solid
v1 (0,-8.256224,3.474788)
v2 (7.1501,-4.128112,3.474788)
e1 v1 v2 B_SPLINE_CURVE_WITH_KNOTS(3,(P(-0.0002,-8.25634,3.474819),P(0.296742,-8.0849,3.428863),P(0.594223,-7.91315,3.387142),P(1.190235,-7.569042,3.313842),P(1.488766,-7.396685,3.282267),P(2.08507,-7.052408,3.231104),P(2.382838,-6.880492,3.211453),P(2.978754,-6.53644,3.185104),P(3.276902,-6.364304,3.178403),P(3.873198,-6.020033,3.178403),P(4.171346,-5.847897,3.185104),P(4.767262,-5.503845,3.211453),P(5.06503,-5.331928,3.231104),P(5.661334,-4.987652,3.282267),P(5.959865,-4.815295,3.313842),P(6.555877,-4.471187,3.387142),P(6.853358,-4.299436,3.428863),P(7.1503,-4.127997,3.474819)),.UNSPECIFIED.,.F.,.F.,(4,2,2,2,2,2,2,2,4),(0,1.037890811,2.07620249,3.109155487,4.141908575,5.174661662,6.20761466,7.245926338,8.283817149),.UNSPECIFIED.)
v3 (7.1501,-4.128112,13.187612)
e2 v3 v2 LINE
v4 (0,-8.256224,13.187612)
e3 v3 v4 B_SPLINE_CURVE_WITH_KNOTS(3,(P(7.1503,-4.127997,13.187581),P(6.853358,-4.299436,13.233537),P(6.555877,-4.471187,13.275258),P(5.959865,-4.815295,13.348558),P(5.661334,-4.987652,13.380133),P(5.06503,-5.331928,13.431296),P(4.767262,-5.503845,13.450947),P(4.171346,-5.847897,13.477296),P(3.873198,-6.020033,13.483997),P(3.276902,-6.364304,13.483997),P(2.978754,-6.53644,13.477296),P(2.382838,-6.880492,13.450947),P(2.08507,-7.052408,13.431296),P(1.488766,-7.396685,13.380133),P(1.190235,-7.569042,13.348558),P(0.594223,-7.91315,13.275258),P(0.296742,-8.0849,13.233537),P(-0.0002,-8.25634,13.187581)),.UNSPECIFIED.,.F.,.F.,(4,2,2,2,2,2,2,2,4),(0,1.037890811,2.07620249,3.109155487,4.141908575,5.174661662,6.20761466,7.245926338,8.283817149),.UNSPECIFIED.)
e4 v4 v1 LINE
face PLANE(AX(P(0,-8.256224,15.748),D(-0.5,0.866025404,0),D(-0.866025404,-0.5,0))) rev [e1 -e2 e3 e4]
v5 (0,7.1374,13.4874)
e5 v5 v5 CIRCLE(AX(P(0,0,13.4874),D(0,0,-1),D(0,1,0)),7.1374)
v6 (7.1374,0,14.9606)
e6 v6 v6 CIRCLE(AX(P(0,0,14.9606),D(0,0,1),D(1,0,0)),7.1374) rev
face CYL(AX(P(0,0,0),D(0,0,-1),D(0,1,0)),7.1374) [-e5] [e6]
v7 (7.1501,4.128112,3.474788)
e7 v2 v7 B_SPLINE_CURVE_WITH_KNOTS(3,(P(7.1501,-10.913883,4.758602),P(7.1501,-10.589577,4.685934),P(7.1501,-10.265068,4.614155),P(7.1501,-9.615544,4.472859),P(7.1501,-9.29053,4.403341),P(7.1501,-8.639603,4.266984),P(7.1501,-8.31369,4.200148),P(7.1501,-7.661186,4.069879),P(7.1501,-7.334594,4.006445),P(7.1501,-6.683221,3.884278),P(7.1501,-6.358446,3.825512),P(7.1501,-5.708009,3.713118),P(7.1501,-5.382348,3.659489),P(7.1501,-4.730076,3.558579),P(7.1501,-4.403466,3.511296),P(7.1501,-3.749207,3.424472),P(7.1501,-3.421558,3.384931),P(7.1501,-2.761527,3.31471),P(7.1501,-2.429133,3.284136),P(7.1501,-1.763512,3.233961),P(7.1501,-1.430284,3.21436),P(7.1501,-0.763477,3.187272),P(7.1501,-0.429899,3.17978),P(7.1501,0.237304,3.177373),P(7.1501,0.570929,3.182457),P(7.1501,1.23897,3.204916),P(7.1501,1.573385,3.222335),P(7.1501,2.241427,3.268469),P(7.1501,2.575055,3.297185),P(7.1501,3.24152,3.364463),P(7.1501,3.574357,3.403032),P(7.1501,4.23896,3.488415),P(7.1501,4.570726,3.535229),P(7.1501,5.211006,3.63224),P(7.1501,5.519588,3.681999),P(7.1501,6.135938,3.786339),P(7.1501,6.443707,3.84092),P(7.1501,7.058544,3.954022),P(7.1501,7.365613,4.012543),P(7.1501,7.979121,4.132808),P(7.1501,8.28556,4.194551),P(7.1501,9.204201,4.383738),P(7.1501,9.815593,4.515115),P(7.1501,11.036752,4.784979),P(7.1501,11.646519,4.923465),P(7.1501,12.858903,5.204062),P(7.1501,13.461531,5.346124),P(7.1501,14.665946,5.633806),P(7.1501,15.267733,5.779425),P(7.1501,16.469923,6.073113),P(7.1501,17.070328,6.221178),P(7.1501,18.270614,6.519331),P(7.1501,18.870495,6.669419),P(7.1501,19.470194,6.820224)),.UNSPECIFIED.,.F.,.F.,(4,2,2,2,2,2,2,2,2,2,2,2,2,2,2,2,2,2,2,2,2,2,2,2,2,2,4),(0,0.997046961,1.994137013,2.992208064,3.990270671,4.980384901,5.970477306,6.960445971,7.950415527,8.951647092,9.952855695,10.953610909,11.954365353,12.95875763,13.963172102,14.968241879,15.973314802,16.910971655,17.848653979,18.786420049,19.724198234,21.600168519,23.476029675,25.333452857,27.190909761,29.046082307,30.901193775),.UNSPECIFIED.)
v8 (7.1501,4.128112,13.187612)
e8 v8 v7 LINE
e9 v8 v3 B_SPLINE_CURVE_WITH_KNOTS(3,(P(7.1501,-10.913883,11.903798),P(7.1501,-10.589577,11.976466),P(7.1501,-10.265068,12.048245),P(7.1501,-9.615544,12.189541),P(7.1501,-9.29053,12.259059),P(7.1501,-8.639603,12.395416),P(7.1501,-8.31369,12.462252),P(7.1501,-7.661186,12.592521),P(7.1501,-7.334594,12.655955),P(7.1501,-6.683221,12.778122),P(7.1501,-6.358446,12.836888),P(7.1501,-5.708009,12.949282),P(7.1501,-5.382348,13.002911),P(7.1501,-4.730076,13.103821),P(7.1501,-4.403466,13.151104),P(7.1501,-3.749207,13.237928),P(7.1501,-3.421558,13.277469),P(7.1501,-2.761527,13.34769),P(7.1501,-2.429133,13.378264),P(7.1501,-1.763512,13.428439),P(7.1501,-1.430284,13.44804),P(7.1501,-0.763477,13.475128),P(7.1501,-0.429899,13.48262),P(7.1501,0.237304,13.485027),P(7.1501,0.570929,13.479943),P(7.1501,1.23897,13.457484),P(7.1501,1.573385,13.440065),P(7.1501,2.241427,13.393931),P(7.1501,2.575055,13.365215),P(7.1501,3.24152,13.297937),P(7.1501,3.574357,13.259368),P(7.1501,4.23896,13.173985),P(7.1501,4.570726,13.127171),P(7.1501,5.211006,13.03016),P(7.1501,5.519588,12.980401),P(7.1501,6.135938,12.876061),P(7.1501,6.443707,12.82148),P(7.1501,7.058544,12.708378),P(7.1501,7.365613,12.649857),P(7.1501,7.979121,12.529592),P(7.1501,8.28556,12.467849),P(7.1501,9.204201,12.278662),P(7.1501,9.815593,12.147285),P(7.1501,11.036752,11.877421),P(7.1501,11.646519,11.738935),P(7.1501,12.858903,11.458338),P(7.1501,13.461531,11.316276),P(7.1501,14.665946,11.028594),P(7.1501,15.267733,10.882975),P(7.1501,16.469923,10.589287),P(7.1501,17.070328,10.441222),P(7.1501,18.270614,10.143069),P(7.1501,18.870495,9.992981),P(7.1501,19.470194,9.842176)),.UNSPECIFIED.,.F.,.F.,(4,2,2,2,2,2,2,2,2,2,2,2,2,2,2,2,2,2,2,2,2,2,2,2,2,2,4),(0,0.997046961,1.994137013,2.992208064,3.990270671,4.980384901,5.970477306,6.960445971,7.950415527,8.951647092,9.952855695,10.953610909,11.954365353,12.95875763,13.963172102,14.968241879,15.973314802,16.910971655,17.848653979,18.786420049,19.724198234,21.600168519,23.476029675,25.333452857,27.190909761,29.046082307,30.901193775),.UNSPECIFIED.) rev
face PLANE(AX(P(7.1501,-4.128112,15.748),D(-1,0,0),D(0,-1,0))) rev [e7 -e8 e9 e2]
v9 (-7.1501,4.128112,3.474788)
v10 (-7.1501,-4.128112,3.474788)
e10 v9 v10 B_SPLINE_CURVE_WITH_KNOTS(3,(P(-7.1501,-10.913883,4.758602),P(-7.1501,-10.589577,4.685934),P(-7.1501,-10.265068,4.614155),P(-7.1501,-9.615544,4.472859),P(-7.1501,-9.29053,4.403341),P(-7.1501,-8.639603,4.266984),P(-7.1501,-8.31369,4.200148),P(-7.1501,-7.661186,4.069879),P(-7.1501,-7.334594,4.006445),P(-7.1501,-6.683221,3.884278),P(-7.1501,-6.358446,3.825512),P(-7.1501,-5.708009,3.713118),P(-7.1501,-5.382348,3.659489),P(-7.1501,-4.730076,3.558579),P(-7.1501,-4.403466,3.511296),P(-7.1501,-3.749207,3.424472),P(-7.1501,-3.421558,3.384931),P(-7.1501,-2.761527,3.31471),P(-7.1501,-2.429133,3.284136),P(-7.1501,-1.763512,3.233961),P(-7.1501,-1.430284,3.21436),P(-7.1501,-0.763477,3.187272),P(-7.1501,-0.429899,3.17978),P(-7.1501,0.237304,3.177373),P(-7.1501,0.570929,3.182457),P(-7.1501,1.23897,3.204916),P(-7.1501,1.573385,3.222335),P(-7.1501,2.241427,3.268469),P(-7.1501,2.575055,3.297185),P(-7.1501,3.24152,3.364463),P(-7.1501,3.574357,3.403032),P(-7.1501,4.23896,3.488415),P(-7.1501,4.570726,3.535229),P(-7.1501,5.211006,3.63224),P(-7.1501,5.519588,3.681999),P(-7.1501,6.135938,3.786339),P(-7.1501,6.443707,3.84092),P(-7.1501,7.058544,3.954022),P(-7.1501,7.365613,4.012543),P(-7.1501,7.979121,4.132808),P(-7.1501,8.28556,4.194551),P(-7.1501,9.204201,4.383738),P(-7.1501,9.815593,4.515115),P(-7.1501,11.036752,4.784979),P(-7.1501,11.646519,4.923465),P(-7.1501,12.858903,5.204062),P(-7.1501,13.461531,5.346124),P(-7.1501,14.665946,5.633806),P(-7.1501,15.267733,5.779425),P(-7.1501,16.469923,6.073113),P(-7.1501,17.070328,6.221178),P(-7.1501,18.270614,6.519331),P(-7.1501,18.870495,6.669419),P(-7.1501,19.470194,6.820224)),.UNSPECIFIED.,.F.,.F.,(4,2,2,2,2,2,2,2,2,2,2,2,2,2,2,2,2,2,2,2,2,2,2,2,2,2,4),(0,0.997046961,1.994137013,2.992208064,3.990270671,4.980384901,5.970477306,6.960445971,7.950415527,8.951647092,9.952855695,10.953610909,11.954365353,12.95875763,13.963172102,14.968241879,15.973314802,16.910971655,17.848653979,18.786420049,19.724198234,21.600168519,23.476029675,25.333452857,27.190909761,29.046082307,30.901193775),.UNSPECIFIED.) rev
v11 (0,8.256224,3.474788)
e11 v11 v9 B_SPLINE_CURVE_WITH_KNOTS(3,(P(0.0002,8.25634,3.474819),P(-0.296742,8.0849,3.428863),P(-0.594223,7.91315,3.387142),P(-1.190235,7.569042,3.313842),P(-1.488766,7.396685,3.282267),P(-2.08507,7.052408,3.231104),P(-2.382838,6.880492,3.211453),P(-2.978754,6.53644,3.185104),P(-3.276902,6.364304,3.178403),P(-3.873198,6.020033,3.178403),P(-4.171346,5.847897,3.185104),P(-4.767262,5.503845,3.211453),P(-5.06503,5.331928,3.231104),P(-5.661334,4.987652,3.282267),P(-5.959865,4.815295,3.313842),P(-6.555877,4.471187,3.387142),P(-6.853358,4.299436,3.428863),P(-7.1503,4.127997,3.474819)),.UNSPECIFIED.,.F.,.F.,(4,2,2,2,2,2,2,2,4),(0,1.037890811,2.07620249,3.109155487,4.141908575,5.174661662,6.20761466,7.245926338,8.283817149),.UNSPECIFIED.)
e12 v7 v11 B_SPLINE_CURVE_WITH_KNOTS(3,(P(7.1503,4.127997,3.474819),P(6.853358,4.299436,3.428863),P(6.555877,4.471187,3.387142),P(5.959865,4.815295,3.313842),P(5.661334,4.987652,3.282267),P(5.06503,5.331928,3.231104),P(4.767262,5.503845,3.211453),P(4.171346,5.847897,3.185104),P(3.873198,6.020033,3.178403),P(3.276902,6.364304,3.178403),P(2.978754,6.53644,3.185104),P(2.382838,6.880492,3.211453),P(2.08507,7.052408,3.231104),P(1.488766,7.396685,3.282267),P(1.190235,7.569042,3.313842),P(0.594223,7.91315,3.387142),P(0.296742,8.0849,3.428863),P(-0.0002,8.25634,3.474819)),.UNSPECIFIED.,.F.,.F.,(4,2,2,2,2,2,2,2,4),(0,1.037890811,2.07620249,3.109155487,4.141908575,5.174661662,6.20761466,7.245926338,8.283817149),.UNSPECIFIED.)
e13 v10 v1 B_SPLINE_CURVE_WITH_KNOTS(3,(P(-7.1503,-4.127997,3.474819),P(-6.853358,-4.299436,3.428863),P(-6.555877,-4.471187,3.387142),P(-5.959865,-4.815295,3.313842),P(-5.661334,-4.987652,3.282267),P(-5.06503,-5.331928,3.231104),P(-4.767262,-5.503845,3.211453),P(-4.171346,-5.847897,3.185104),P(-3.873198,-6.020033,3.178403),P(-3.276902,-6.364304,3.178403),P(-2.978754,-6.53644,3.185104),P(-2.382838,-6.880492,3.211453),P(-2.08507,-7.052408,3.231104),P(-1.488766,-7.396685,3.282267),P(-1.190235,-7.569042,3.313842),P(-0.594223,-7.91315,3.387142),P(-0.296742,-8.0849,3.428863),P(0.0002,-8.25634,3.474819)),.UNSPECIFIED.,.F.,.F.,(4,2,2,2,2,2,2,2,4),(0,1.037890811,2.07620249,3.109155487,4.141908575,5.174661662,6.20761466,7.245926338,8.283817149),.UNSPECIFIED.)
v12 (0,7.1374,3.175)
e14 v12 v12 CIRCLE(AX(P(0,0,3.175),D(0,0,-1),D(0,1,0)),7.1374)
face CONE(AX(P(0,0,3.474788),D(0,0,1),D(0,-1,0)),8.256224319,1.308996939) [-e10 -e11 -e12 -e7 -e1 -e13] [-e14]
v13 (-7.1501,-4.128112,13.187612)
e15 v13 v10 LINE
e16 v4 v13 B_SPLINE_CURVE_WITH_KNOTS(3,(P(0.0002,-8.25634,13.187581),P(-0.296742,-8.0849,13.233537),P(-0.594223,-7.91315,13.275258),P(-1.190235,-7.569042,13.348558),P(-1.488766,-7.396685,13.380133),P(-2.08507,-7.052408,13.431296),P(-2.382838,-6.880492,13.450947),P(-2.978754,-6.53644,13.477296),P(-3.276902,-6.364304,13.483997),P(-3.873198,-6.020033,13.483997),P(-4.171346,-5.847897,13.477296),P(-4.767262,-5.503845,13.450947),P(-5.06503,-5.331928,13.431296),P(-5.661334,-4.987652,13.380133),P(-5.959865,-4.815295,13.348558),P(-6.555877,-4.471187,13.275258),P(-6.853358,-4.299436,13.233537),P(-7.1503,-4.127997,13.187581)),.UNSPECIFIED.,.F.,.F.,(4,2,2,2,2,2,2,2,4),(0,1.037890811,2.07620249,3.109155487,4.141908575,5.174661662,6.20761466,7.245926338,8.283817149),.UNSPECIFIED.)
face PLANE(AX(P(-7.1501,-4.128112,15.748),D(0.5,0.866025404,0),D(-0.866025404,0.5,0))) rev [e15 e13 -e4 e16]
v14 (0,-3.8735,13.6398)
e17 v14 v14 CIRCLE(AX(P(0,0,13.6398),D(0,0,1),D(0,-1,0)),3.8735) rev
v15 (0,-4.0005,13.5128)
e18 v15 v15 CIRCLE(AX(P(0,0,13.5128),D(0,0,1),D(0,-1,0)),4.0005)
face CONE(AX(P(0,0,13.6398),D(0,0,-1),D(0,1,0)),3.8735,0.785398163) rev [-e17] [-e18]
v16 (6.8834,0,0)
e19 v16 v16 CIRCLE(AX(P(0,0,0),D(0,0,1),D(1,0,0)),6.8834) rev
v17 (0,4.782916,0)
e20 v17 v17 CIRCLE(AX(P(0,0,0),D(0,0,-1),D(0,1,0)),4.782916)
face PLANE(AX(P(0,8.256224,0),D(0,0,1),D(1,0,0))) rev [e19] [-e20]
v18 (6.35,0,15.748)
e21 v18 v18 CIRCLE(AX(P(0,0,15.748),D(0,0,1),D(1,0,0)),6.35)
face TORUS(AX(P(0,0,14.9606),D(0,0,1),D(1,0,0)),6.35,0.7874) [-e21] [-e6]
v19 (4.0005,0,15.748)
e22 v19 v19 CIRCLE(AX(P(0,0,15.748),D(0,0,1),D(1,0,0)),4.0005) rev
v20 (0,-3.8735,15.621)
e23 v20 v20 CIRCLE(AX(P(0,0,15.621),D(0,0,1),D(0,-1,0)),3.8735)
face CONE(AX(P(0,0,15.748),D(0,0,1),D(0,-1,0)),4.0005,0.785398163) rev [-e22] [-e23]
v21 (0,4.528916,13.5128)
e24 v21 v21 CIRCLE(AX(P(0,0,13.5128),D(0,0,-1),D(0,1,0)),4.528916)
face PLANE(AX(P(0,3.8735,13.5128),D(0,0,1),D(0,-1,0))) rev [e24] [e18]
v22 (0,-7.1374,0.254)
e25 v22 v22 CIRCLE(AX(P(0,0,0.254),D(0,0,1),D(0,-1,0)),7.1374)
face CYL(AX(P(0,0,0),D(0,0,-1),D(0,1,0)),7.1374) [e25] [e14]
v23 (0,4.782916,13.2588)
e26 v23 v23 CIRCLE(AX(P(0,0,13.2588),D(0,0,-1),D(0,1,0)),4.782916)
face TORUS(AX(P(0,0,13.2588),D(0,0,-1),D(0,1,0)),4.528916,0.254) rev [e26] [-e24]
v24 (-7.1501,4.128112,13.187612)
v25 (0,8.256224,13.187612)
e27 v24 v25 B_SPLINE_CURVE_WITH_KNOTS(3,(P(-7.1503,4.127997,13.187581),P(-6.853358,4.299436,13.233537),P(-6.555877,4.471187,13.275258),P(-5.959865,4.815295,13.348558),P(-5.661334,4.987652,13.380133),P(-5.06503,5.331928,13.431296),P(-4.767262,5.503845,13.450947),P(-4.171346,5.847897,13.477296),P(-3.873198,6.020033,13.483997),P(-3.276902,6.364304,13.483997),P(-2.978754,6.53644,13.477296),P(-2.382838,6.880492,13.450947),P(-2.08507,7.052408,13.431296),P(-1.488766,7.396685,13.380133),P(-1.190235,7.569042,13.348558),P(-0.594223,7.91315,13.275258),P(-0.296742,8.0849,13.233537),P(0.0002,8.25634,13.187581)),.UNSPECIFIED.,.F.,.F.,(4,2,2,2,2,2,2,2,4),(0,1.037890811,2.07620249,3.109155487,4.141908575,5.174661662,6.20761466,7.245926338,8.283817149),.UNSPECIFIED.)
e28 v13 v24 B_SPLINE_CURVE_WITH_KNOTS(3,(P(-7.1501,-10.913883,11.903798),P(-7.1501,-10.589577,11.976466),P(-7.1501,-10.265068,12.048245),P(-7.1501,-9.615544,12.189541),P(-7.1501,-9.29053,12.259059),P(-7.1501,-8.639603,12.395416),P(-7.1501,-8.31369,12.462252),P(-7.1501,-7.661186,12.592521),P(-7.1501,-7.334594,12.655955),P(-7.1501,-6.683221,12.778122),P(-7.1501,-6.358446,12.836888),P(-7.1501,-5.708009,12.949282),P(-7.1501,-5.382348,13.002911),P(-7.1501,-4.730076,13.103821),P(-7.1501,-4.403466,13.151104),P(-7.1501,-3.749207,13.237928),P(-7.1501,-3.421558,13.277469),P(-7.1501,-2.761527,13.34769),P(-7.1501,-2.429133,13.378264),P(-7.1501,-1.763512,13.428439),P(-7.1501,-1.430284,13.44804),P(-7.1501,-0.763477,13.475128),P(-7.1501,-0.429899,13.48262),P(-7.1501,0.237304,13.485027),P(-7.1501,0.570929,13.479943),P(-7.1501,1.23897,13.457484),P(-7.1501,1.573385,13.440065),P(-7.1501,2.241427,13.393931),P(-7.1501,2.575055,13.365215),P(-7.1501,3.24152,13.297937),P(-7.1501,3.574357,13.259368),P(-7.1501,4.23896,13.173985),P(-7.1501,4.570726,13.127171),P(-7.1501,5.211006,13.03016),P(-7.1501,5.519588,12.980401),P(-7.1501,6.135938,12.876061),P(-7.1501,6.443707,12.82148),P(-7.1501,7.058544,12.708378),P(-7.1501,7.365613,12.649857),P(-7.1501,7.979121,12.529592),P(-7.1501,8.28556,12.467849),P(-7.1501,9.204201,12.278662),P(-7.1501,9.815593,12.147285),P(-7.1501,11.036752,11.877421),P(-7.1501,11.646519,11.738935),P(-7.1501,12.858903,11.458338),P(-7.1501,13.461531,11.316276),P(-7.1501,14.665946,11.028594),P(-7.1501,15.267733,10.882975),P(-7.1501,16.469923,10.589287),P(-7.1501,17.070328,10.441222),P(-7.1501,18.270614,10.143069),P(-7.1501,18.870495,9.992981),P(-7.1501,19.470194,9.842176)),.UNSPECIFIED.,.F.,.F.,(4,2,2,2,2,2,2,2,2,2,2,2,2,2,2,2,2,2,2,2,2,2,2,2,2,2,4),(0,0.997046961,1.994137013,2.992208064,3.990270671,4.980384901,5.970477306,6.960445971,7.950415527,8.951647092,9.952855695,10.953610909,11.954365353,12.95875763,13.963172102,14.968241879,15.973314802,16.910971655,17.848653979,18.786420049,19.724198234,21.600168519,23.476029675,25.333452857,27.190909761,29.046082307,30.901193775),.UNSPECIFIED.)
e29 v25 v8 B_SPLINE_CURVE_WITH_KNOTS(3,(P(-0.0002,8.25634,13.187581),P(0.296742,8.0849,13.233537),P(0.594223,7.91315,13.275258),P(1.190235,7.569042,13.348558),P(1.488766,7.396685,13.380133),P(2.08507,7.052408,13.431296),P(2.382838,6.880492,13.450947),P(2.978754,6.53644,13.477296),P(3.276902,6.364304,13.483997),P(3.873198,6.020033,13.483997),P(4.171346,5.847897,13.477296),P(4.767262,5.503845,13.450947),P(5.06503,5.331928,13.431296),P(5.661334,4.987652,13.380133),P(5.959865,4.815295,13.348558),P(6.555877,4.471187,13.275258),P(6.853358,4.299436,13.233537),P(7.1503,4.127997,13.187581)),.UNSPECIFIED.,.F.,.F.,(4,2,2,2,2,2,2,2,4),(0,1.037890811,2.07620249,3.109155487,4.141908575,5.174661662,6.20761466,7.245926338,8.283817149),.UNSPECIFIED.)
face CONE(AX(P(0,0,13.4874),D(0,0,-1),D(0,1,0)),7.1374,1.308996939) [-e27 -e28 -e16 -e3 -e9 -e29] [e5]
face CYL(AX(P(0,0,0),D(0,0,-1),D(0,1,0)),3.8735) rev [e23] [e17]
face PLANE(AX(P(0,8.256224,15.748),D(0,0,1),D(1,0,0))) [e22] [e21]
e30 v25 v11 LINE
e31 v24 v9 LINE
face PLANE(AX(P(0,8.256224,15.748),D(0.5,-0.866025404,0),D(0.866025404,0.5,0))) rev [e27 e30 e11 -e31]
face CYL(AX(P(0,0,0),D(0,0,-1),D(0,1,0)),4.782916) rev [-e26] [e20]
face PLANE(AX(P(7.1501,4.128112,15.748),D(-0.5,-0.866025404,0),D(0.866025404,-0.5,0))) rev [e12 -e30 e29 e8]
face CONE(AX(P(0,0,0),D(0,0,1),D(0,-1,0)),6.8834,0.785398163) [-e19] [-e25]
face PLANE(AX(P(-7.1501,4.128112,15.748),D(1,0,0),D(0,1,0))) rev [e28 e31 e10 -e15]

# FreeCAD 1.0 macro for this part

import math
import FreeCAD as App
import Part
import Sketcher

V = App.Vector
Q = App.Units.Quantity


def edges_at(feature, points):
    """Names of the edges that pass closest to the given points."""
    edges = feature.Shape.Edges
    near = lambda p: min(range(len(edges)), key=lambda i: edges[i].distToShape(Part.Vertex(*p))[0])
    return sorted({f"Edge{near(p) + 1}" for p in points})


def add_polygon(sketch, points):
    """Adds a closed chain of lines whose ends are joined by coincident constraints."""
    first, n = sketch.GeometryCount, len(points)
    for a, b in zip(points, points[1:] + points[:1]):
        sketch.addGeometry(Part.LineSegment(App.Vector(*a, 0), App.Vector(*b, 0)), False)
    for i in range(n):
        sketch.addConstraint(Sketcher.Constraint("Coincident", first + i, 2, first + (i + 1) % n, 1))

doc = App.newDocument("Part")
params = doc.addObject("Spreadsheet::Sheet", "Params")
for row, (alias, value) in enumerate([
    ("pad1_length", "0.62 in"),
    ("sketch2_radius", "0.01 in"),
    ("sketch2_height", "0.62 in"),
    ("sketch2_height2", "0.089 in"),
    ("sketch2_height3", "0.125 in"),
    ("sketch2_height4", "0.522 in"),
    ("groove_angle", "360 deg"),
    ("fillet_radius", "0.031 in"),
    ("chamfer_size", "0.01 in"),
    ("chamfer2_size", "0.005 in"),
], start=1):
    params.set(f"A{row}", alias)
    params.set(f"B{row}", "=" + value)
    params.setAlias(f"B{row}", alias)

body = doc.addObject("PartDesign::Body", "Body")

# Sketch on XY plane
sketch1 = doc.addObject("Sketcher::SketchObject", "Sketch")
body.addObject(sketch1)
sketch1.AttachmentSupport = (doc.XY_Plane, [""])
sketch1.MapMode = "FlatFace"
add_polygon(sketch1, [(0, 8), (-7, 4), (-7, -4), (0, -8), (7, -4), (7, 4)])  # lines 0-5
sketch1.addConstraint([
    Sketcher.Constraint("Vertical", 1),
    Sketcher.Constraint("Vertical", 4),
    Sketcher.Constraint("Symmetric", 0, 2, 3, 2, -1, 1),
    Sketcher.Constraint("Symmetric", 2, 2, 5, 2, -1, 1),
    Sketcher.Constraint("PointOnObject", 2, 2, -2),
    Sketcher.Constraint("Parallel", 2, 5),
    Sketcher.Constraint("Horizontal", 1, 2, 3, 2),
    Sketcher.Constraint("Angle", 0, Q("-150 deg")),
    Sketcher.Constraint("DistanceX", 1, 2, 3, 2, Q("0.563 in")),
    Sketcher.Constraint("DistanceY", 1, 2, 1, 1, Q("8.256224 mm")),
])
pad1 = doc.addObject("PartDesign::Pad", "Pad")
body.addObject(pad1)
pad1.Profile = sketch1
pad1.setExpression("Length", "Params.pad1_length")

# Sketch on YZ plane
sketch2 = doc.addObject("Sketcher::SketchObject", "Sketch001")
body.addObject(sketch2)
sketch2.AttachmentSupport = (doc.YZ_Plane, [""])
sketch2.MapMode = "FlatFace"
add_polygon(sketch2, [(9.38, 15.75), (7.14, 15.75), (7.14, 13.49), (8.26, 13.19), (8.26, 3.47), (7.14, 3.17), (7.14, 0), (9.38, 0)])  # lines 0-7
sketch2.addGeometry(Part.LineSegment(V(3.87, 15.75, 0), V(0, 15.75, 0)), False)  # 8
sketch2.addGeometry(Part.LineSegment(V(0, 15.75, 0), V(0, 0, 0)), False)  # 9
sketch2.addGeometry(Part.LineSegment(V(0, 0, 0), V(4.78, 0, 0)), False)  # 10
sketch2.addGeometry(Part.LineSegment(V(4.78, 0, 0), V(4.78, 13.26, 0)), False)  # 11
sketch2.addGeometry(Part.ArcOfCircle(Part.Circle(V(4.53, 13.26, 0), V(0, 0, 1), 0.25), math.radians(0), math.radians(90)), False)  # 12
sketch2.addGeometry(Part.LineSegment(V(4.53, 13.51, 0), V(3.87, 13.51, 0)), False)  # 13
sketch2.addGeometry(Part.LineSegment(V(3.87, 13.51, 0), V(3.87, 15.75, 0)), False)  # 14
sketch2.addConstraint([
    Sketcher.Constraint("Coincident", 8, 2, 9, 1),
    Sketcher.Constraint("Coincident", 9, 2, 10, 1),
    Sketcher.Constraint("Coincident", 10, 2, 11, 1),
    Sketcher.Constraint("Tangent", 11, 2, 12, 1),
    Sketcher.Constraint("Tangent", 12, 2, 13, 1),
    Sketcher.Constraint("Coincident", 13, 2, 14, 1),
    Sketcher.Constraint("Coincident", 14, 2, 8, 1),
    Sketcher.Constraint("Horizontal", 0),
    Sketcher.Constraint("Vertical", 1),
    Sketcher.Constraint("Vertical", 3),
    Sketcher.Constraint("Vertical", 5),
    Sketcher.Constraint("Horizontal", 6),
    Sketcher.Constraint("Vertical", 7),
    Sketcher.Constraint("Horizontal", 8),
    Sketcher.Constraint("Vertical", 9),
    Sketcher.Constraint("Horizontal", 10),
    Sketcher.Constraint("Vertical", 11),
    Sketcher.Constraint("Horizontal", 13),
    Sketcher.Constraint("Vertical", 14),
    Sketcher.Constraint("Coincident", 9, 2, -1, 1),
    Sketcher.Constraint("PointOnObject", 5, 2, -1),
    Sketcher.Constraint("Horizontal", 7, 2, 8, 2),
    Sketcher.Constraint("Vertical", 1, 2, 4, 2),
    Sketcher.Constraint("Equal", 2, 4),
    Sketcher.Constraint("Radius", 12, Q("0.01 in")),
    Sketcher.Constraint("Angle", 2, Q("-15 deg")),
    Sketcher.Constraint("DistanceY", 7, 1, 7, 2, Q("0.62 in")),
    Sketcher.Constraint("DistanceY", 1, 2, 1, 1, Q("0.089 in")),
    Sketcher.Constraint("DistanceY", 5, 2, 5, 1, Q("0.125 in")),
    Sketcher.Constraint("DistanceY", 11, 1, 11, 2, Q("0.522 in")),
    Sketcher.Constraint("DistanceX", 8, 2, 8, 1, Q("0.1525 in")),
    Sketcher.Constraint("DistanceX", -1, 1, 0, 2, Q("0.281 in")),
    Sketcher.Constraint("DistanceX", 0, 2, 0, 1, Q("2.237649 mm")),
    Sketcher.Constraint("DistanceX", 10, 1, 10, 2, Q("4.782916 mm")),
    Sketcher.Constraint("DistanceY", 3, 2, 3, 1, Q("9.712824 mm")),
])
sketch2.setExpression("Constraints[32]", "Params.sketch2_radius")
sketch2.setExpression("Constraints[34]", "Params.sketch2_height")
sketch2.setExpression("Constraints[35]", "Params.sketch2_height2")
sketch2.setExpression("Constraints[36]", "Params.sketch2_height3")
sketch2.setExpression("Constraints[37]", "Params.sketch2_height4")
groove = doc.addObject("PartDesign::Groove", "Groove")
body.addObject(groove)
groove.Profile = sketch2
groove.ReferenceAxis = (sketch2, ["V_Axis"])
groove.setExpression("Angle", "Params.groove_angle")
doc.recompute()

fillet = doc.addObject("PartDesign::Fillet", "Fillet")
body.addObject(fillet)
fillet.Base = (groove, edges_at(groove, [(0, -7.137, 15.748)]))
fillet.setExpression("Radius", "Params.fillet_radius")
doc.recompute()

chamfer = doc.addObject("PartDesign::Chamfer", "Chamfer")
body.addObject(chamfer)
chamfer.Base = (fillet, edges_at(fillet, [(0, -7.137, 0)]))
chamfer.setExpression("Size", "Params.chamfer_size")
doc.recompute()

chamfer2 = doc.addObject("PartDesign::Chamfer", "Chamfer001")
body.addObject(chamfer2)
chamfer2.Base = (chamfer, edges_at(chamfer, [(0, -3.873, 15.748), (0, -3.873, 13.513)]))
chamfer2.setExpression("Size", "Params.chamfer2_size")

doc.recompute()
